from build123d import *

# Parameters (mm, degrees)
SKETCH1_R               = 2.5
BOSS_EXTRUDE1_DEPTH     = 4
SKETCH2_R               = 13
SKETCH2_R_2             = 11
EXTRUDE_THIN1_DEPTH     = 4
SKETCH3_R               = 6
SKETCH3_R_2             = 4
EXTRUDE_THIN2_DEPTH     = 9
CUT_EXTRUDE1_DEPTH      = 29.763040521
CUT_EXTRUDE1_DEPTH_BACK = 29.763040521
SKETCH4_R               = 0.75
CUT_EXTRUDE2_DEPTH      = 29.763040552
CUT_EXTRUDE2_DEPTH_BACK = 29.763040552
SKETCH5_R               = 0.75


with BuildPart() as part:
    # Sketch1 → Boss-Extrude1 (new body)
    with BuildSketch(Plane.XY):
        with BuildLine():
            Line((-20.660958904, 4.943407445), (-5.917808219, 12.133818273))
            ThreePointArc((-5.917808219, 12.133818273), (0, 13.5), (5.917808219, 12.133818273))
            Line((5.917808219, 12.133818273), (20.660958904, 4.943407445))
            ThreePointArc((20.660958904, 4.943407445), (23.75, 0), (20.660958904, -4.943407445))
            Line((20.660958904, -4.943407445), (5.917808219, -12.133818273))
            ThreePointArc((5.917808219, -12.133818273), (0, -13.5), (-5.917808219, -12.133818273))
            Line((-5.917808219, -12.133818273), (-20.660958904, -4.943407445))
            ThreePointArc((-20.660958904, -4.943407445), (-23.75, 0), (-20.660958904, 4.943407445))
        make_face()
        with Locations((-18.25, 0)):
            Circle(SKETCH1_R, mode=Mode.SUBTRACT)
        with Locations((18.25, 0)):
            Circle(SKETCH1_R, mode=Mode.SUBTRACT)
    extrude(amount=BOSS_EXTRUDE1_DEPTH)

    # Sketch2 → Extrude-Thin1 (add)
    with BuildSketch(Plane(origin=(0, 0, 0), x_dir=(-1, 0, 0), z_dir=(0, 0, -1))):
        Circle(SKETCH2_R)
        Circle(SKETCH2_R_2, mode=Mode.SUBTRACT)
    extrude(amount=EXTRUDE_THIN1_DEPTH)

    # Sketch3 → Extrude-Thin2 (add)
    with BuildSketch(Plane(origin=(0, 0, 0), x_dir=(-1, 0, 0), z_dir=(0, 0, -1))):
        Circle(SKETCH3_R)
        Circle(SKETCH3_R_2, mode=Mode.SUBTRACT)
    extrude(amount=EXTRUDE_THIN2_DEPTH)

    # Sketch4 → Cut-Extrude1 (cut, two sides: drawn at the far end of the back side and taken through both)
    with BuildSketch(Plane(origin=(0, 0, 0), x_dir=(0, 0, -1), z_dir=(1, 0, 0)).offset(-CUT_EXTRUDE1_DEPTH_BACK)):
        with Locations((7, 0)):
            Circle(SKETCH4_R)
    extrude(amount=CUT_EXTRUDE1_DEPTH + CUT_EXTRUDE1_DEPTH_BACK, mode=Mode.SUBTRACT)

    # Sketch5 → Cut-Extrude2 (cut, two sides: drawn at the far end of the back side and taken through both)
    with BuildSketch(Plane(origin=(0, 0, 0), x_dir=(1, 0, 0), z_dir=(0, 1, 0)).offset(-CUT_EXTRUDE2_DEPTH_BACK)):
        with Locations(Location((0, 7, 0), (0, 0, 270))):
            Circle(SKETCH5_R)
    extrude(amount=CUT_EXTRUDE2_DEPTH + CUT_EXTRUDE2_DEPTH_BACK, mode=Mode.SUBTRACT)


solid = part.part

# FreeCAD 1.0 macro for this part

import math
import FreeCAD as App
import Part
import Sketcher
Q = App.Units.Quantity

doc = App.newDocument("Part")
body = doc.addObject("PartDesign::Body", "Body")

# Sketch on XY plane
sketch1 = body.newObject("Sketcher::SketchObject", "Sketch")
sketch1.AttachmentSupport = (doc.getObject("XY_Plane"), [""])
sketch1.MapMode = "FlatFace"
sketch1.addGeometry([
    Part.LineSegment(App.Vector(-5.9, 12.1, 0), App.Vector(-20.7, 4.9, 0)),  # 0
    Part.ArcOfCircle(Part.Circle(App.Vector(-18.2, 0, 0), App.Vector(0, 0, 1), 5.5), math.radians(116), math.radians(244)),  # 1
    Part.LineSegment(App.Vector(-20.7, -4.9, 0), App.Vector(-5.9, -12.1, 0)),  # 2
    Part.ArcOfCircle(Part.Circle(App.Vector(0, 0, 0), App.Vector(0, 0, 1), 13.5), math.radians(-116), math.radians(-64)),  # 3
    Part.LineSegment(App.Vector(5.9, -12.1, 0), App.Vector(20.7, -4.9, 0)),  # 4
    Part.ArcOfCircle(Part.Circle(App.Vector(18.2, 0, 0), App.Vector(0, 0, 1), 5.5), math.radians(-64), math.radians(64)),  # 5
    Part.LineSegment(App.Vector(20.7, 4.9, 0), App.Vector(5.9, 12.1, 0)),  # 6
    Part.ArcOfCircle(Part.Circle(App.Vector(0, 0, 0), App.Vector(0, 0, 1), 13.5), math.radians(64), math.radians(116)),  # 7
    Part.Circle(App.Vector(18.2, 0, 0), App.Vector(0, 0, 1), 2.5),  # 8
    Part.Circle(App.Vector(-18.2, 0, 0), App.Vector(0, 0, 1), 2.5),  # 9
], False)
sketch1.addConstraint([
    Sketcher.Constraint("Tangent", 0, 2, 1, 1),
    Sketcher.Constraint("Tangent", 1, 2, 2, 1),
    Sketcher.Constraint("Tangent", 2, 2, 3, 1),
    Sketcher.Constraint("Tangent", 3, 2, 4, 1),
    Sketcher.Constraint("Tangent", 4, 2, 5, 1),
    Sketcher.Constraint("Tangent", 5, 2, 6, 1),
    Sketcher.Constraint("Tangent", 6, 2, 7, 1),
    Sketcher.Constraint("Tangent", 7, 2, 0, 1),
    Sketcher.Constraint("Coincident", 3, 3, -1, 1),
    Sketcher.Constraint("Coincident", 7, 3, -1, 1),
    Sketcher.Constraint("Coincident", 8, 3, 5, 3),
    Sketcher.Constraint("Coincident", 9, 3, 1, 3),
    Sketcher.Constraint("Equal", 1, 5),
    Sketcher.Constraint("Equal", 3, 7),
    Sketcher.Constraint("Equal", 8, 9),
    Sketcher.Constraint("Symmetric", 1, 3, 5, 3, -1, 1),
    Sketcher.Constraint("PointOnObject", 1, 3, -1),
    Sketcher.Constraint("Diameter", 8, Q("5 mm")),
    Sketcher.Constraint("Radius", 1, Q("5.5 mm")),
    Sketcher.Constraint("Radius", 3, Q("13.5 mm")),
    Sketcher.Constraint("DistanceX", 1, 3, 5, 3, Q("36.5 mm")),
])
pad1 = body.newObject("PartDesign::Pad", "Pad")
pad1.Profile = sketch1
pad1.Length = 4

# Sketch on XY plane
sketch2 = body.newObject("Sketcher::SketchObject", "Sketch001")
sketch2.AttachmentSupport = (doc.getObject("XY_Plane"), [""])
sketch2.MapMode = "FlatFace"
sketch2.addGeometry([
    Part.Circle(App.Vector(0, 0, 0), App.Vector(0, 0, 1), 13),
    Part.Circle(App.Vector(0, 0, 0), App.Vector(0, 0, 1), 11),
], False)
sketch2.addConstraint([
    Sketcher.Constraint("Coincident", 0, 3, -1, 1),
    Sketcher.Constraint("Coincident", 1, 3, -1, 1),
    Sketcher.Constraint("Diameter", 0, Q("26 mm")),
    Sketcher.Constraint("Diameter", 1, Q("22 mm")),
])
pad2 = body.newObject("PartDesign::Pad", "Pad001")
pad2.Profile = sketch2
pad2.Length = 4
pad2.Reversed = True

# Sketch on XY plane
sketch3 = body.newObject("Sketcher::SketchObject", "Sketch002")
sketch3.AttachmentSupport = (doc.getObject("XY_Plane"), [""])
sketch3.MapMode = "FlatFace"
sketch3.addGeometry([
    Part.Circle(App.Vector(0, 0, 0), App.Vector(0, 0, 1), 6),
    Part.Circle(App.Vector(0, 0, 0), App.Vector(0, 0, 1), 4),
], False)
sketch3.addConstraint([
    Sketcher.Constraint("Coincident", 0, 3, -1, 1),
    Sketcher.Constraint("Coincident", 1, 3, -1, 1),
    Sketcher.Constraint("Diameter", 0, Q("12 mm")),
    Sketcher.Constraint("Diameter", 1, Q("8 mm")),
])
pad3 = body.newObject("PartDesign::Pad", "Pad002")
pad3.Profile = sketch3
pad3.Length = 9
pad3.Reversed = True

# Sketch on YZ plane
sketch4 = body.newObject("Sketcher::SketchObject", "Sketch003")
sketch4.AttachmentSupport = (doc.getObject("YZ_Plane"), [""])
sketch4.MapMode = "FlatFace"
sketch4.addGeometry(Part.Circle(App.Vector(0, -7, 0), App.Vector(0, 0, 1), 0.8), False)
sketch4.addConstraint([
    Sketcher.Constraint("PointOnObject", 0, 3, -2),
    Sketcher.Constraint("Diameter", 0, Q("1.5 mm")),
    Sketcher.Constraint("DistanceY", 0, 3, -1, 1, Q("7 mm")),
])
pocket1 = body.newObject("PartDesign::Pocket", "Pocket")
pocket1.Profile = sketch4
pocket1.Type = "ThroughAll"
pocket1.Midplane = True

# Sketch on XZ plane
sketch5 = body.newObject("Sketcher::SketchObject", "Sketch004")
sketch5.AttachmentSupport = (doc.getObject("XZ_Plane"), [""])
sketch5.MapMode = "FlatFace"
sketch5.addGeometry(Part.Circle(App.Vector(0, -7, 0), App.Vector(0, 0, 1), 0.8), False)
sketch5.addConstraint([
    Sketcher.Constraint("PointOnObject", 0, 3, -2),
    Sketcher.Constraint("Diameter", 0, Q("1.5 mm")),
    Sketcher.Constraint("DistanceY", 0, 3, -1, 1, Q("7 mm")),
])
pocket2 = body.newObject("PartDesign::Pocket", "Pocket001")
pocket2.Profile = sketch5
pocket2.Type = "ThroughAll"
pocket2.Midplane = True

doc.recompute()
